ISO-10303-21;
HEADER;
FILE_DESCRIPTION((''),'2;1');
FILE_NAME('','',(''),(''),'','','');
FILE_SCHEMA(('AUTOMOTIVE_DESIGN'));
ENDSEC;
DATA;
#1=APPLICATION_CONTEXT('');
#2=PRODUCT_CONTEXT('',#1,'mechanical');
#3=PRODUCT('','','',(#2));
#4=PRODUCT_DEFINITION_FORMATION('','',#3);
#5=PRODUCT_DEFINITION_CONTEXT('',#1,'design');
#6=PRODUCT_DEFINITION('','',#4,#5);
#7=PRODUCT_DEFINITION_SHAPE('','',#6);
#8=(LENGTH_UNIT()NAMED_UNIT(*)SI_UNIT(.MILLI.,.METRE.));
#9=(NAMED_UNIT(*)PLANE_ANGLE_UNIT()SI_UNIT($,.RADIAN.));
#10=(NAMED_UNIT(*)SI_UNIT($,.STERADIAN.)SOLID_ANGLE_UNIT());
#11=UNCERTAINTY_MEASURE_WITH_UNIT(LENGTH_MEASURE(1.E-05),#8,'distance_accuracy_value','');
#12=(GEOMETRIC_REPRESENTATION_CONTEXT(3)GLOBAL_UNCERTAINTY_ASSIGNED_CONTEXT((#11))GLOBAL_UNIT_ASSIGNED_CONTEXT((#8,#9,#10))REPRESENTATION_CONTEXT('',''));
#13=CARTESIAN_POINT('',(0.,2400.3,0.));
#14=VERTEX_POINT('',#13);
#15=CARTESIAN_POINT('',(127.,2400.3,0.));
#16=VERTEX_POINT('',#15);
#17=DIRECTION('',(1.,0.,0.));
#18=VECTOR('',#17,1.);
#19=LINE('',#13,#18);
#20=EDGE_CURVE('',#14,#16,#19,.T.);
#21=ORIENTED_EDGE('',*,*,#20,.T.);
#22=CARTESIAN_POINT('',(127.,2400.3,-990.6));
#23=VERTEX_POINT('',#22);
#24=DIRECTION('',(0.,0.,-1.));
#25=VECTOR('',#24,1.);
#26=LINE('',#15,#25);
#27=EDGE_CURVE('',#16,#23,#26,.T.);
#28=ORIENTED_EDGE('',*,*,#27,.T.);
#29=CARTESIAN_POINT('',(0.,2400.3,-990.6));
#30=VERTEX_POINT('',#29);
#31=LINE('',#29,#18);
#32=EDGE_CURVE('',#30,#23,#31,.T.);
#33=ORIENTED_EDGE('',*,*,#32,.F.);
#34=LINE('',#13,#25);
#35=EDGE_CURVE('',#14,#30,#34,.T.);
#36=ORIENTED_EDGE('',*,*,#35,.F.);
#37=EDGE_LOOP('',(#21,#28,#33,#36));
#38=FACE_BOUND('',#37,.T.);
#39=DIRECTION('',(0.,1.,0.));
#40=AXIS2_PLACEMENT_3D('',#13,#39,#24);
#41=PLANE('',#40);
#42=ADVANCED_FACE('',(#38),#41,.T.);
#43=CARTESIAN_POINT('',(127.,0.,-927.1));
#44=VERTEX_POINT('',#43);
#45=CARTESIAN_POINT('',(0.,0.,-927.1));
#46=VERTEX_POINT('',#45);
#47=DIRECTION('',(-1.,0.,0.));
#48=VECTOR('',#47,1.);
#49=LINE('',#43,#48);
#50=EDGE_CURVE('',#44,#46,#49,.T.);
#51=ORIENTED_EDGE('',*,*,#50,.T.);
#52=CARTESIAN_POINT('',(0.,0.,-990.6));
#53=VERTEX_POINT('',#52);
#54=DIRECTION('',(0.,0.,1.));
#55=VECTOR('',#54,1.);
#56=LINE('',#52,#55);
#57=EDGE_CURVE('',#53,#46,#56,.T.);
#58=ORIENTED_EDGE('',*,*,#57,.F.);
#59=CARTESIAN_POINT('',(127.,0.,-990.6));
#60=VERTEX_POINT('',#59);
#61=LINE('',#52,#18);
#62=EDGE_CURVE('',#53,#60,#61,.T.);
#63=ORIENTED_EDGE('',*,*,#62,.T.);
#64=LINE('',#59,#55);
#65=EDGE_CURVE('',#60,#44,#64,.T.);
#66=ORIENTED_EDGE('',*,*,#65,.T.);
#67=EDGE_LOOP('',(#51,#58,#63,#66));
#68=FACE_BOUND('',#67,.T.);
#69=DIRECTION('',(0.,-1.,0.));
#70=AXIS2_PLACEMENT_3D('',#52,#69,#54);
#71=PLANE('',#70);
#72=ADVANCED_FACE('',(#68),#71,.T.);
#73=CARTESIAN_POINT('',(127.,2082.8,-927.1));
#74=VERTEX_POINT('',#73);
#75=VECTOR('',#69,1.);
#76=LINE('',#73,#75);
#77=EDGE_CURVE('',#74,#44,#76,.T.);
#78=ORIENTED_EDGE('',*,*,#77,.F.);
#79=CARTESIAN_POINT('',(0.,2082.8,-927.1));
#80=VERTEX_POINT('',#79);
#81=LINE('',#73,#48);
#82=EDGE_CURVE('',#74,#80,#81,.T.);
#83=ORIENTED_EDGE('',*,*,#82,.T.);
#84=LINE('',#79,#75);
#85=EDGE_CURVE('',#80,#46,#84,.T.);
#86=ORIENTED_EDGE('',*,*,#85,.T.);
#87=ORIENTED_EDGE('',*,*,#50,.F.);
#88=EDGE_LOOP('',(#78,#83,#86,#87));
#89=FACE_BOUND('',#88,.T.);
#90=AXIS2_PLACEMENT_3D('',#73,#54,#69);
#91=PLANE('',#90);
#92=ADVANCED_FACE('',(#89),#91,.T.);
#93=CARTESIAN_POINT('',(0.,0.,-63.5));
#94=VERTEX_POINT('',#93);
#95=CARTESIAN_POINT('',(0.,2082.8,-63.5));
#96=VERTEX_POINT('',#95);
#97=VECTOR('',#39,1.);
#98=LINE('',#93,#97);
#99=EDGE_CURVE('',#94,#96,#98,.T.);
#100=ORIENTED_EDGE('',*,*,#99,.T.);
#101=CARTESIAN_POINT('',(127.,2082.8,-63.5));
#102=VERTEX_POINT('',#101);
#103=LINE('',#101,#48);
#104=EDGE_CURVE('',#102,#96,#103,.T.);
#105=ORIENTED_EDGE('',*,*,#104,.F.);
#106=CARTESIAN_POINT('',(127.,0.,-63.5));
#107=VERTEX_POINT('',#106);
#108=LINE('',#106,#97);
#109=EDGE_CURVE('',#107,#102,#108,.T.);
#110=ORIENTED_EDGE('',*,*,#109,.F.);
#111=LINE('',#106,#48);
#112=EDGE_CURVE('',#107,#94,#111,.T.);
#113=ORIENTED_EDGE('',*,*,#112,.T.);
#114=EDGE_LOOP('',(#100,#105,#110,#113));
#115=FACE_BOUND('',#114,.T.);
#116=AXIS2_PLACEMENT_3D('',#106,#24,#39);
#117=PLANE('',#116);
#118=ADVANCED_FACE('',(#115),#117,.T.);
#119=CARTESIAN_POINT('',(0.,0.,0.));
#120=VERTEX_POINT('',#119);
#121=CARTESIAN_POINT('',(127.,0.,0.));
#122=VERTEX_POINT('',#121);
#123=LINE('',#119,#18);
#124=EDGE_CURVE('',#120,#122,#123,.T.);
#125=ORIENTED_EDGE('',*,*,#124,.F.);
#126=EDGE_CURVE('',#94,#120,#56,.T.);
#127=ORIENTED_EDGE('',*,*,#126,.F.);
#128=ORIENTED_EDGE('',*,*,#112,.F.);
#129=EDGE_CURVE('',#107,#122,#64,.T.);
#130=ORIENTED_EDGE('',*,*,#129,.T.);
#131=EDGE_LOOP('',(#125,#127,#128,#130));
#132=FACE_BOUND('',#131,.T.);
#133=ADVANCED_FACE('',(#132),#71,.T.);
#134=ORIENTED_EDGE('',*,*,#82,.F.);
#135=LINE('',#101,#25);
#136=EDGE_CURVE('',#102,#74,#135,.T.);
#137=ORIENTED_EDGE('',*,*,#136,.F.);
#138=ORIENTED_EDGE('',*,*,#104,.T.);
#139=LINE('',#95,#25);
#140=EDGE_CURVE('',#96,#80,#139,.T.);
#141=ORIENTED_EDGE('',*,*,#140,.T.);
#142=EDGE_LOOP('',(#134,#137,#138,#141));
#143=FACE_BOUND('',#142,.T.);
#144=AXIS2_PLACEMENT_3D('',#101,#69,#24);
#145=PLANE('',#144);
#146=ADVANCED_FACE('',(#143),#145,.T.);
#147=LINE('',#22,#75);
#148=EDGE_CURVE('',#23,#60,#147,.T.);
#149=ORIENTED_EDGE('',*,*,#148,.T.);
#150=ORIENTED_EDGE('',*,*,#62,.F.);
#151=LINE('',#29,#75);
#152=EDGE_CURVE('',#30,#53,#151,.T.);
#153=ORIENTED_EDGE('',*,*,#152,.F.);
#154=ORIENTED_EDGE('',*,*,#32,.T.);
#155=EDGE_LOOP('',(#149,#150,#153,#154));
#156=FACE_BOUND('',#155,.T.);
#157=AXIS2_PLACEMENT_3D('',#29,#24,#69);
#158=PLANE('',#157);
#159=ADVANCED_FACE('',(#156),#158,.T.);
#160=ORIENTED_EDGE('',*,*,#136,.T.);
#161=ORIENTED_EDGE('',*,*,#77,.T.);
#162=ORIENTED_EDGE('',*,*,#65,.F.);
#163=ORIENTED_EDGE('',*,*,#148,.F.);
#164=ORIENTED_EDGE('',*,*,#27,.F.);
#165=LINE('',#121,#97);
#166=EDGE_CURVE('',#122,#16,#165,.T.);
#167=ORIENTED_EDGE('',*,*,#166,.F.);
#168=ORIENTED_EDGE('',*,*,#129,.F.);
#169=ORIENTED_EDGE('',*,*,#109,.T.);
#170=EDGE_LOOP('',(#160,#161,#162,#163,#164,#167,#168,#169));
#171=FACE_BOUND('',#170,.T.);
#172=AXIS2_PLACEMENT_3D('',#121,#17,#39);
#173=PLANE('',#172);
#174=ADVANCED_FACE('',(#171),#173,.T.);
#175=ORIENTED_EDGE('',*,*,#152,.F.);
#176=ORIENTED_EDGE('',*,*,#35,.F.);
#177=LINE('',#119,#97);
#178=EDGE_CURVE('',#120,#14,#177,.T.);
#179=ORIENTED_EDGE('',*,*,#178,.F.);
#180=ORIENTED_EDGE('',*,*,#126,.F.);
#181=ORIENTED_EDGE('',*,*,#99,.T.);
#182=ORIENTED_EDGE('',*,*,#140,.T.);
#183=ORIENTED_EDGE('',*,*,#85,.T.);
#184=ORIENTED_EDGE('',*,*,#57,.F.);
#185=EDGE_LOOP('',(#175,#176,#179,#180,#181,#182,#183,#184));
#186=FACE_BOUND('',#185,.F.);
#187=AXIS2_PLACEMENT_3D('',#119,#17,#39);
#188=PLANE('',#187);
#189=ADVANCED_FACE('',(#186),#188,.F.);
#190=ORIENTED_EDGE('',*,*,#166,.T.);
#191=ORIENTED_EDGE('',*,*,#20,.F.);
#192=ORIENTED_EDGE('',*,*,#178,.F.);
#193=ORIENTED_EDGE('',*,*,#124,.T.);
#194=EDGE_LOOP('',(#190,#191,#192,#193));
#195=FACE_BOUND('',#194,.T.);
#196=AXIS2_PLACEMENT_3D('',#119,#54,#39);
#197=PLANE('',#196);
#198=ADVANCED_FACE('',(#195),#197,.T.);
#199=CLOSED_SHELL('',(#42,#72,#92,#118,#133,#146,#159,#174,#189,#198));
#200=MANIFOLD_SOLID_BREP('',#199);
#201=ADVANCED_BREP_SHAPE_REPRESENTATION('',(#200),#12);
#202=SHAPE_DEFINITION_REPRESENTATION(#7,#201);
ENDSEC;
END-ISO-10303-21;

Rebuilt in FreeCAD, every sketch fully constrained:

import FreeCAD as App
import Part
import Sketcher
from FreeCAD import Vector
Q = App.Units.Quantity

doc = App.newDocument("Part")
body = doc.addObject("PartDesign::Body", "Body")

sketch1 = body.newObject("Sketcher::SketchObject", "Sketch")
sketch1.AttachmentSupport = (doc.getObject("YZ_Plane"), [""])
sketch1.MapMode = "FlatFace"
sketch1.addGeometry([
    Part.LineSegment(Vector(2400, 0, 0), Vector(0, 0, 0)),
    Part.LineSegment(Vector(0, 0, 0), Vector(0, -991, 0)),
    Part.LineSegment(Vector(0, -991, 0), Vector(2400, -991, 0)),
    Part.LineSegment(Vector(2400, -991, 0), Vector(2400, 0, 0)),
], False)
sketch1.addConstraint([
    Sketcher.Constraint("Coincident", 0, 2, 1, 1),
    Sketcher.Constraint("Coincident", 1, 2, 2, 1),
    Sketcher.Constraint("Coincident", 2, 2, 3, 1),
    Sketcher.Constraint("Coincident", 3, 2, 0, 1),
    Sketcher.Constraint("Horizontal", 0),
    Sketcher.Constraint("Vertical", 1),
    Sketcher.Constraint("Horizontal", 2),
    Sketcher.Constraint("Vertical", 3),
    Sketcher.Constraint("Coincident", 0, 2, -1, 1),
    Sketcher.Constraint("DistanceY", 1, 2, 1, 1, Q("39 in")),
    Sketcher.Constraint("DistanceX", 0, 2, 0, 1, Q("94.5 in")),
])
pad1 = body.newObject("PartDesign::Pad", "Pad")
pad1.Profile = sketch1
pad1.Length = Q("5 in")

sketch2 = body.newObject("Sketcher::SketchObject", "Sketch001")
sketch2.AttachmentSupport = (doc.getObject("YZ_Plane"), [""])
sketch2.MapMode = "FlatFace"
sketch2.AttachmentOffset = App.Placement(Vector(0, 0, 5 * 25.4), App.Rotation())
sketch2.addGeometry([
    Part.LineSegment(Vector(2083, -64, 0), Vector(0, -64, 0)),
    Part.LineSegment(Vector(0, -64, 0), Vector(0, -927, 0)),
    Part.LineSegment(Vector(0, -927, 0), Vector(2083, -927, 0)),
    Part.LineSegment(Vector(2083, -927, 0), Vector(2083, -64, 0)),
], False)
sketch2.addConstraint([
    Sketcher.Constraint("Coincident", 0, 2, 1, 1),
    Sketcher.Constraint("Coincident", 1, 2, 2, 1),
    Sketcher.Constraint("Coincident", 2, 2, 3, 1),
    Sketcher.Constraint("Coincident", 3, 2, 0, 1),
    Sketcher.Constraint("Horizontal", 0),
    Sketcher.Constraint("Vertical", 1),
    Sketcher.Constraint("Horizontal", 2),
    Sketcher.Constraint("Vertical", 3),
    Sketcher.Constraint("PointOnObject", 0, 2, -2),
    Sketcher.Constraint("DistanceX", 0, 2, 0, 1, Q("82 in")),
    Sketcher.Constraint("DistanceY", 1, 2, 1, 1, Q("34 in")),
    Sketcher.Constraint("DistanceY", 0, 2, -1, 1, Q("2.5 in")),
])
pocket1 = body.newObject("PartDesign::Pocket", "Pocket")
pocket1.Profile = sketch2
pocket1.Length = Q("5 in")

doc.recompute()
